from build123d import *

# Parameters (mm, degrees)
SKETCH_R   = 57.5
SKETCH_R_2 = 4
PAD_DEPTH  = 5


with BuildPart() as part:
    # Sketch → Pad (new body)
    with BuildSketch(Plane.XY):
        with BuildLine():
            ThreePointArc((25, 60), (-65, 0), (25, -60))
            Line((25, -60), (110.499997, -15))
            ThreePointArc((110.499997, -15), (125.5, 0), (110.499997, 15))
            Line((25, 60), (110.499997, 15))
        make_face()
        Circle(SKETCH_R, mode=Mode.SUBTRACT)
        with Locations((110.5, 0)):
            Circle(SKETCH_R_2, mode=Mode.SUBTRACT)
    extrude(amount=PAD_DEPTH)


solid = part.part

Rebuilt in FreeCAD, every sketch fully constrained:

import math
import FreeCAD as App
import Part
import Sketcher

doc = App.newDocument("Part")
body = doc.addObject("PartDesign::Body", "Body")

sketch1 = body.newObject("Sketcher::SketchObject", "Sketch")
sketch1.AttachmentSupport = (doc.getObject("XY_Plane"), [""])
sketch1.MapMode = "FlatFace"
sketch1.addGeometry(Part.ArcOfCircle(Part.Circle(App.Vector(0, 0, 0), App.Vector(0, 0, 1), 65), math.radians(67), math.radians(293)), False)
sketch1.addGeometry(Part.LineSegment(App.Vector(25, -60, 0), App.Vector(110.5, -15, 0)), False)
sketch1.addGeometry(Part.ArcOfCircle(Part.Circle(App.Vector(110.5, 0, 0), App.Vector(0, 0, 1), 15), math.radians(-90), math.radians(90)), False)
sketch1.addGeometry(Part.LineSegment(App.Vector(110.5, 15, 0), App.Vector(25, 60, 0)), False)
sketch1.addGeometry(Part.Circle(App.Vector(0, 0, 0), App.Vector(0, 0, 1), 57.5), False)
sketch1.addGeometry(Part.Circle(App.Vector(110.5, 0, 0), App.Vector(0, 0, 1), 4), False)
sketch1.addConstraint(Sketcher.Constraint("Coincident", 0, 2, 1, 1))
sketch1.addConstraint(Sketcher.Constraint("Coincident", 1, 2, 2, 1))
sketch1.addConstraint(Sketcher.Constraint("Coincident", 2, 2, 3, 1))
sketch1.addConstraint(Sketcher.Constraint("Coincident", 3, 2, 0, 1))
sketch1.addConstraint(Sketcher.Constraint("Coincident", 0, 3, -1, 1))
sketch1.addConstraint(Sketcher.Constraint("Coincident", 4, 3, -1, 1))
sketch1.addConstraint(Sketcher.Constraint("Coincident", 5, 3, 2, 3))
sketch1.addConstraint(Sketcher.Constraint("Symmetric", 1, 2, 2, 2, -1))
sketch1.addConstraint(Sketcher.Constraint("Vertical", 0, 2, 3, 2))
sketch1.addConstraint(Sketcher.Constraint("Diameter", 4, 115.0))
sketch1.addConstraint(Sketcher.Constraint("Diameter", 5, 8.0))
sketch1.addConstraint(Sketcher.Constraint("Radius", 0, 65.0))
sketch1.addConstraint(Sketcher.Constraint("Radius", 2, 15.0))
sketch1.addConstraint(Sketcher.Constraint("DistanceX", -1, 1, 0, 2, 25.0))
sketch1.addConstraint(Sketcher.Constraint("DistanceX", -1, 1, 2, 3, 110.5))
sketch1.addConstraint(Sketcher.Constraint("Distance", 1, 96.619095))
pad1 = body.newObject("PartDesign::Pad", "Pad")
pad1.Profile = sketch1
pad1.Length = 5

doc.recompute()
